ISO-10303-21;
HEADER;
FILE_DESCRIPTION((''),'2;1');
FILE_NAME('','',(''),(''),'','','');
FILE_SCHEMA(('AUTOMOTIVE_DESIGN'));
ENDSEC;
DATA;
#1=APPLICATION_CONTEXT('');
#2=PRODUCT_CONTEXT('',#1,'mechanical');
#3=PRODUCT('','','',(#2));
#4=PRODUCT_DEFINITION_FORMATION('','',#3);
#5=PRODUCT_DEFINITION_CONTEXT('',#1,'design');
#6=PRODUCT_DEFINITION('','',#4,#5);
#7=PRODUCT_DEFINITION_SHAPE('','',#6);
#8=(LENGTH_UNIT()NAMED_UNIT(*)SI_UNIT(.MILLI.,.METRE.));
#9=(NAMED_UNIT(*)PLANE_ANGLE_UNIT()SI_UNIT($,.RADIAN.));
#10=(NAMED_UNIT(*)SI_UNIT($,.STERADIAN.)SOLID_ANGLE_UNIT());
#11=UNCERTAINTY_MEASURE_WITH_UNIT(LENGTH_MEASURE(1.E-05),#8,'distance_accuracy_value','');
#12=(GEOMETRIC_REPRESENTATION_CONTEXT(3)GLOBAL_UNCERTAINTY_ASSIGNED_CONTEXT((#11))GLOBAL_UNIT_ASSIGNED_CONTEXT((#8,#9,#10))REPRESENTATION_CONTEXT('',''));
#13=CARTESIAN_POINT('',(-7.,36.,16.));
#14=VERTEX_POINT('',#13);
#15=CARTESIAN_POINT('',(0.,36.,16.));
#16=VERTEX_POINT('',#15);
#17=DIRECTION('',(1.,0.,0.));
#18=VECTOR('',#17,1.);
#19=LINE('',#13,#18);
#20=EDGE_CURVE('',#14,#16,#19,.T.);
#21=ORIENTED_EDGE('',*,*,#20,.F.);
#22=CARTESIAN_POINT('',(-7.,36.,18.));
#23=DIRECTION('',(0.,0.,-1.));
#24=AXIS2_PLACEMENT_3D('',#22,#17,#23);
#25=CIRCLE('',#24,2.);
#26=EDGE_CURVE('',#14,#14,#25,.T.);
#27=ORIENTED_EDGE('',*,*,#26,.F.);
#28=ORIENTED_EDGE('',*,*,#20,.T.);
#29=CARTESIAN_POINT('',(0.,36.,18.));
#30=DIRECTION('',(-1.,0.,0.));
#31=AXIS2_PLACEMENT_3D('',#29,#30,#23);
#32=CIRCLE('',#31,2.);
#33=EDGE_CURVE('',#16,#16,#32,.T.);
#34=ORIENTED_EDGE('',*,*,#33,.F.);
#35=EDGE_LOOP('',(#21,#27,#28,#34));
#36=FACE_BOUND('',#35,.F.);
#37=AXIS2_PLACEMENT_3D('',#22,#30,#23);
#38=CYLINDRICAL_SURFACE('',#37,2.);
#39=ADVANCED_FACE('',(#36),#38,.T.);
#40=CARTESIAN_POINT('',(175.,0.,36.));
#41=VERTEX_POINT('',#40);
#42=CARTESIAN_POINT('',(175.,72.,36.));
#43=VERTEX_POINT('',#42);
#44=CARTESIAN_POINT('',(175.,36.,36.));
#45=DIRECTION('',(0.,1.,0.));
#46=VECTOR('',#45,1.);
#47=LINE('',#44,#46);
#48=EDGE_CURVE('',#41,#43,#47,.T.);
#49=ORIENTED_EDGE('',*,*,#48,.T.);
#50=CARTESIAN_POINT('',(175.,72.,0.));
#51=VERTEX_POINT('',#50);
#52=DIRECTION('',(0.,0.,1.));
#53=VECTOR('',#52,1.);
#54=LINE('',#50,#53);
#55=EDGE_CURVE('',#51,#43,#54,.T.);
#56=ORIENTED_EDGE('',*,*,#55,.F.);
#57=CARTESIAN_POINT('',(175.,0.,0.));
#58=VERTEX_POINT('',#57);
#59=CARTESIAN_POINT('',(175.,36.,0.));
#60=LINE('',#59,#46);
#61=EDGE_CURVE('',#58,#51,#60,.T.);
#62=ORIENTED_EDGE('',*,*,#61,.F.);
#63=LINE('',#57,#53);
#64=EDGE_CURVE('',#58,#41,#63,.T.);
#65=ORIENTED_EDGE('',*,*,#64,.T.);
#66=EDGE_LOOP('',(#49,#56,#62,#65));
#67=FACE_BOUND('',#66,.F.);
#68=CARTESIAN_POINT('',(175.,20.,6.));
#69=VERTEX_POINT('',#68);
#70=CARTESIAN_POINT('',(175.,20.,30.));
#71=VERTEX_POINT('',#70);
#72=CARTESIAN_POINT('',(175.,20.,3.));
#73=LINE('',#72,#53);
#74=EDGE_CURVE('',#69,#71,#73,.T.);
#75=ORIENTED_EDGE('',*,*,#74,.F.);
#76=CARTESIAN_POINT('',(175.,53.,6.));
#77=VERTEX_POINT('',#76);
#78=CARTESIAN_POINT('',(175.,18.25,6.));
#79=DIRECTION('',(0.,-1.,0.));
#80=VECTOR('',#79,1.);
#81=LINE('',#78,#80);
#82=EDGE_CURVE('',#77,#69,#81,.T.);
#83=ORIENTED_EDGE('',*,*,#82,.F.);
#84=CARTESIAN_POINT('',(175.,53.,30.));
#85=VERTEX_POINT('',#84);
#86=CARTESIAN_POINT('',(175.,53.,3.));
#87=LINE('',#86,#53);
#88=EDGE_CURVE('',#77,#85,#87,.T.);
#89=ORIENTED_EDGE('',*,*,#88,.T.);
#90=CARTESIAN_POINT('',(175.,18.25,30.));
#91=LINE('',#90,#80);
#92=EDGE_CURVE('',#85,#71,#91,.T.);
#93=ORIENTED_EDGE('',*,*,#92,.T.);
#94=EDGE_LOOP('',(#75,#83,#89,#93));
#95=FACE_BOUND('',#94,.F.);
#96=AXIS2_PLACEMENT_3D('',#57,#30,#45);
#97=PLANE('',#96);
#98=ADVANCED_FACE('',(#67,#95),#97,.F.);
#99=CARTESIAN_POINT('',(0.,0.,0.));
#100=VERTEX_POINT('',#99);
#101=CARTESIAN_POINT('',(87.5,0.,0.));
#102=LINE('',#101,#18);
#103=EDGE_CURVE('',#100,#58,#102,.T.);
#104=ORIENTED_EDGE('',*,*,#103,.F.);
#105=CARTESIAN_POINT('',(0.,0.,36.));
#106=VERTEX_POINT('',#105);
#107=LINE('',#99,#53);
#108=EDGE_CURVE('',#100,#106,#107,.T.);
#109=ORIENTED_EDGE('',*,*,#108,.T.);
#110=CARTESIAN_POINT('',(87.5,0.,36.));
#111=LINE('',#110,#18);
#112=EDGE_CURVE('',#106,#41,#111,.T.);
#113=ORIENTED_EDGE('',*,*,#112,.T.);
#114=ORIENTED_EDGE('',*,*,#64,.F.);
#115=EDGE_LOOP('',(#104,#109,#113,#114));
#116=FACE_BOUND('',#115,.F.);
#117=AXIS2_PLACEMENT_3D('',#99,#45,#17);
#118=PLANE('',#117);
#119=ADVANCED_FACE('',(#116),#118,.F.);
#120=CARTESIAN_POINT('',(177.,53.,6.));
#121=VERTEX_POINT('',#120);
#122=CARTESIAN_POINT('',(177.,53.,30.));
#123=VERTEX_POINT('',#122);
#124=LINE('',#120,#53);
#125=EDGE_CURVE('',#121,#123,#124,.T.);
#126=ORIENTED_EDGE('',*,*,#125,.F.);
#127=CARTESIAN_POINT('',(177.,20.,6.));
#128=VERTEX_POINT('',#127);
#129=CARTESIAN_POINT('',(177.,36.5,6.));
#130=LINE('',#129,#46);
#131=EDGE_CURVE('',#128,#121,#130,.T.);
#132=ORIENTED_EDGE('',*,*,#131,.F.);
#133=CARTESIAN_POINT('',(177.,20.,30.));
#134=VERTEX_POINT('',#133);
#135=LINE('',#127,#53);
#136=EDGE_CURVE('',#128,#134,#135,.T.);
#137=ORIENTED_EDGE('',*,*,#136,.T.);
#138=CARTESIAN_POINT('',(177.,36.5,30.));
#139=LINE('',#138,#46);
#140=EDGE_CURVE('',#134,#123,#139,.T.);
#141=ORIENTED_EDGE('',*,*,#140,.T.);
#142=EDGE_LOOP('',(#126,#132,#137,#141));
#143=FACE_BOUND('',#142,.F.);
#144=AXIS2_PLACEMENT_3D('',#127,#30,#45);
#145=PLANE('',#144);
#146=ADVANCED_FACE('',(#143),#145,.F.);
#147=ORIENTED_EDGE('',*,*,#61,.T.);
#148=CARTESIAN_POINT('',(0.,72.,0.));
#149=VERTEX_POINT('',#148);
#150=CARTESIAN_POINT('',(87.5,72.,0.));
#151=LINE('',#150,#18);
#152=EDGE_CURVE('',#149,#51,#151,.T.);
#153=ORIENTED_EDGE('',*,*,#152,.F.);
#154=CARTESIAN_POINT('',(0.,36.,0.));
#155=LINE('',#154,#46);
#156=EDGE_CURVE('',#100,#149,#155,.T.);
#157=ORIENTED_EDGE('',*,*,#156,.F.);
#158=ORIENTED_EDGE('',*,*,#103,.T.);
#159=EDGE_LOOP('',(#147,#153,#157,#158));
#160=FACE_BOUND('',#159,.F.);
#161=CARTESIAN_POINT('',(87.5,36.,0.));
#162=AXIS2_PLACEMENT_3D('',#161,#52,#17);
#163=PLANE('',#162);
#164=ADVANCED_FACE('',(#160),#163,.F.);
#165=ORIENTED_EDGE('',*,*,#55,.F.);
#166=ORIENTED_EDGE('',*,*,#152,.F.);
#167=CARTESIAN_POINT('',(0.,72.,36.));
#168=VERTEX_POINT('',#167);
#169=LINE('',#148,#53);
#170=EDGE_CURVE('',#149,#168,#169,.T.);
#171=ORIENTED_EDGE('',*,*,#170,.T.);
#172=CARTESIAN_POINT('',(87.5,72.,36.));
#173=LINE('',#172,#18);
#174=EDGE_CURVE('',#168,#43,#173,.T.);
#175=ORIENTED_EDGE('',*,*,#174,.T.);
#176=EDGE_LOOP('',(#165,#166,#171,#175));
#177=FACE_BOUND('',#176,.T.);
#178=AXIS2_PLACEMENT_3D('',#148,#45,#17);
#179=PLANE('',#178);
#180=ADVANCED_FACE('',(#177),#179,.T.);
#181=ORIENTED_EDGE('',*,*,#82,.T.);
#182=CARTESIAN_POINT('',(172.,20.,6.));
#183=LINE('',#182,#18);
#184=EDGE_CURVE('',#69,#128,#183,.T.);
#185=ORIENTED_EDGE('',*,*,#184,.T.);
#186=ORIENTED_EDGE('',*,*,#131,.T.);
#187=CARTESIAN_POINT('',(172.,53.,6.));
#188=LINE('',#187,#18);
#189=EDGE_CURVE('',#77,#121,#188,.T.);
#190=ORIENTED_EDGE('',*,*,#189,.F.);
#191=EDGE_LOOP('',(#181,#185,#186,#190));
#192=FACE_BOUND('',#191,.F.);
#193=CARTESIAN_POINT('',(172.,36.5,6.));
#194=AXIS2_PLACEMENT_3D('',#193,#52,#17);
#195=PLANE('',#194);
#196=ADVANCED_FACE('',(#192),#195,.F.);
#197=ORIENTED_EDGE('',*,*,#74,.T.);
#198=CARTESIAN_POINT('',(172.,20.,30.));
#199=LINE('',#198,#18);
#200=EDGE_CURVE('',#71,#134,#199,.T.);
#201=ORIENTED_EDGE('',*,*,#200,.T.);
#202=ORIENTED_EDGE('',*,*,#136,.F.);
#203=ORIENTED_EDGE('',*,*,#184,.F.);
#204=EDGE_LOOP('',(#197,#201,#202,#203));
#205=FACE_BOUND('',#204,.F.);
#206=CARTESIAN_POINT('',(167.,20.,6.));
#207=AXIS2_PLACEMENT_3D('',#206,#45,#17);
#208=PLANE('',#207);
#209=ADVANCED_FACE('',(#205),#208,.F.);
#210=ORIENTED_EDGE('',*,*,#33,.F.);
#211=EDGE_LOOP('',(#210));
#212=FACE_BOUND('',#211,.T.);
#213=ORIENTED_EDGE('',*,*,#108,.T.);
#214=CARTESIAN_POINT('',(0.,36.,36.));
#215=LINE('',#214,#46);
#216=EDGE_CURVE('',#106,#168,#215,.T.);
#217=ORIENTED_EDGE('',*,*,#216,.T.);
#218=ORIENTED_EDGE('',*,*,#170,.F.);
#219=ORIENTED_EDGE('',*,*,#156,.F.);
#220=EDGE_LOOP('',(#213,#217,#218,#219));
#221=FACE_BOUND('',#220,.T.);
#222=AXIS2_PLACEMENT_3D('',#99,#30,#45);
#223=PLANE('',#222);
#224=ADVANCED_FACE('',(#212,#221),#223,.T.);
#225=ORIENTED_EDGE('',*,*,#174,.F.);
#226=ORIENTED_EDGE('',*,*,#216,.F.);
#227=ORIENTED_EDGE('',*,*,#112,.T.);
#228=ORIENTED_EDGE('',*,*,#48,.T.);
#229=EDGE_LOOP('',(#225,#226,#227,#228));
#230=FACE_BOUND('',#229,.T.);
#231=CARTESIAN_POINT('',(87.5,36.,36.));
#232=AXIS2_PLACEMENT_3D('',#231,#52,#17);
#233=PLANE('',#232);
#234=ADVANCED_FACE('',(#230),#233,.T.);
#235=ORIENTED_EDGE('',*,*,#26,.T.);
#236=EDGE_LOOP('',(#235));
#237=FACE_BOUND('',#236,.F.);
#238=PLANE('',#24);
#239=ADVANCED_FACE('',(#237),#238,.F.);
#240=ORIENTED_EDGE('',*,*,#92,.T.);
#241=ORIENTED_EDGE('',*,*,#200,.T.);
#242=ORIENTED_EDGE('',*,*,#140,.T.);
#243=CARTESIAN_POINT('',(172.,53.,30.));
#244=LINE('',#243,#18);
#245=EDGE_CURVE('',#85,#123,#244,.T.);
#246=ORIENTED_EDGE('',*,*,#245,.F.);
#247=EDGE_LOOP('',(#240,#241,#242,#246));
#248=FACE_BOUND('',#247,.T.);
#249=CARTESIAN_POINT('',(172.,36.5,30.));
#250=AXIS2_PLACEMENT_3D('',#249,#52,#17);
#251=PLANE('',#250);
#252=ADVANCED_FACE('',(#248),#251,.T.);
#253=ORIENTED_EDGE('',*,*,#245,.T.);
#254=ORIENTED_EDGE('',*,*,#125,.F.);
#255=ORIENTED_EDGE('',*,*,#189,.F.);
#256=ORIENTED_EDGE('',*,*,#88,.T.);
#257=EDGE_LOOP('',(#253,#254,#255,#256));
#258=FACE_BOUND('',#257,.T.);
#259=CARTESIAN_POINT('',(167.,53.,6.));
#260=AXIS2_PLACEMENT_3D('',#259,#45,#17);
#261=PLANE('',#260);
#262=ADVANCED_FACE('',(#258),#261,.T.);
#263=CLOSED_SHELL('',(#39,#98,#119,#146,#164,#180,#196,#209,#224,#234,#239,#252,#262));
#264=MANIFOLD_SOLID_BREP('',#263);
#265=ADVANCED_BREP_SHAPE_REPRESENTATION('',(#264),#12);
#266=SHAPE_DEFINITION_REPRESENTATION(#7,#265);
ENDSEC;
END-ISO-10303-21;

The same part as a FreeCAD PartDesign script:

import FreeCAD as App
import Part
import Sketcher

V = App.Vector
Q = App.Units.Quantity


def add_polygon(sketch, points):
    """Adds a closed chain of lines whose ends are joined by coincident constraints."""
    first, n = sketch.GeometryCount, len(points)
    for a, b in zip(points, points[1:] + points[:1]):
        sketch.addGeometry(Part.LineSegment(App.Vector(*a, 0), App.Vector(*b, 0)), False)
    for i in range(n):
        sketch.addConstraint(Sketcher.Constraint("Coincident", first + i, 2, first + (i + 1) % n, 1))

doc = App.newDocument("Part")
params = doc.addObject("Spreadsheet::Sheet", "Params")
for row, (alias, value) in enumerate([
    ("sketch1_diameter", "4 mm"),
    ("pad1_length", "11 mm"),
    ("sketch2_width", "175 mm"),
    ("sketch2_height", "72 mm"),
    ("pad2_length", "36 mm"),
    ("sketch3_width", "7 mm"),
    ("sketch3_height", "4 mm"),
    ("pad3_length", "10 mm"),
    ("sketch4_width", "10 mm"),
    ("sketch4_height", "33 mm"),
    ("pad4_length", "24 mm"),
], start=1):
    params.set(f"A{row}", alias)
    params.set(f"B{row}", "=" + value)
    params.setAlias(f"B{row}", alias)

body = doc.addObject("PartDesign::Body", "Body")

# Sketch on YZ plane
sketch1 = doc.addObject("Sketcher::SketchObject", "Sketch")
body.addObject(sketch1)
sketch1.AttachmentSupport = (doc.YZ_Plane, [""])
sketch1.MapMode = "FlatFace"
sketch1.AttachmentOffset = App.Placement(V(0, 0, -7), App.Rotation())
sketch1.addGeometry(Part.Circle(V(36, 18, 0), V(0, 0, 1), 2), False)
sketch1.addConstraint([
    Sketcher.Constraint("Diameter", 0, Q("4 mm")),
    Sketcher.Constraint("DistanceX", -1, 1, 0, 3, Q("36 mm")),
    Sketcher.Constraint("DistanceY", -1, 1, 0, 3, Q("18 mm")),
])
sketch1.setExpression("Constraints[0]", "Params.sketch1_diameter")
pad1 = doc.addObject("PartDesign::Pad", "Pad")
body.addObject(pad1)
pad1.Profile = sketch1
pad1.setExpression("Length", "Params.pad1_length")
body2 = doc.addObject("PartDesign::Body", "Body001")

# Sketch on XY plane
sketch2 = doc.addObject("Sketcher::SketchObject", "Sketch001")
body2.addObject(sketch2)
sketch2.AttachmentSupport = (doc.getObject("XY_Plane001"), [""])
sketch2.MapMode = "FlatFace"
add_polygon(sketch2, [(0, 72), (0, 0), (175, 0), (175, 72)])  # lines 0-3
sketch2.addConstraint([
    Sketcher.Constraint("Vertical", 0),
    Sketcher.Constraint("Horizontal", 1),
    Sketcher.Constraint("Vertical", 2),
    Sketcher.Constraint("Horizontal", 3),
    Sketcher.Constraint("Coincident", 0, 2, -1, 1),
    Sketcher.Constraint("DistanceX", 1, 1, 1, 2, Q("175 mm")),
    Sketcher.Constraint("DistanceY", 0, 2, 0, 1, Q("72 mm")),
])
sketch2.setExpression("Constraints[9]", "Params.sketch2_width")
sketch2.setExpression("Constraints[10]", "Params.sketch2_height")
pad2 = doc.addObject("PartDesign::Pad", "Pad001")
body2.addObject(pad2)
pad2.Profile = sketch2
pad2.setExpression("Length", "Params.pad2_length")
body3 = doc.addObject("PartDesign::Body", "Body002")

# Sketch on XY plane
sketch3 = doc.addObject("Sketcher::SketchObject", "Sketch002")
body3.addObject(sketch3)
sketch3.AttachmentSupport = (doc.getObject("XY_Plane002"), [""])
sketch3.MapMode = "FlatFace"
sketch3.AttachmentOffset = App.Placement(V(0, 0, 26), App.Rotation())
add_polygon(sketch3, [(5, 22), (5, 18), (12, 18), (12, 22)])  # lines 0-3
sketch3.addConstraint([
    Sketcher.Constraint("Vertical", 0),
    Sketcher.Constraint("Horizontal", 1),
    Sketcher.Constraint("Vertical", 2),
    Sketcher.Constraint("Horizontal", 3),
    Sketcher.Constraint("DistanceX", 1, 1, 1, 2, Q("7 mm")),
    Sketcher.Constraint("DistanceY", 0, 2, 0, 1, Q("4 mm")),
    Sketcher.Constraint("DistanceX", -1, 1, 0, 2, Q("5 mm")),
    Sketcher.Constraint("DistanceY", -1, 1, 0, 2, Q("18 mm")),
])
sketch3.setExpression("Constraints[8]", "Params.sketch3_width")
sketch3.setExpression("Constraints[9]", "Params.sketch3_height")
pad3 = doc.addObject("PartDesign::Pad", "Pad002")
body3.addObject(pad3)
pad3.Profile = sketch3
pad3.setExpression("Length", "Params.pad3_length")
body4 = doc.addObject("PartDesign::Body", "Body003")
body4.AllowCompound = True

# Sketch on XY plane
sketch4 = doc.addObject("Sketcher::SketchObject", "Sketch003")
body4.addObject(sketch4)
sketch4.AttachmentSupport = (doc.getObject("XY_Plane003"), [""])
sketch4.MapMode = "FlatFace"
sketch4.AttachmentOffset = App.Placement(V(0, 0, 6), App.Rotation())
add_polygon(sketch4, [(167, 53), (167, 20), (177, 20), (177, 53)])  # lines 0-3
sketch4.addConstraint([
    Sketcher.Constraint("Vertical", 0),
    Sketcher.Constraint("Horizontal", 1),
    Sketcher.Constraint("Vertical", 2),
    Sketcher.Constraint("Horizontal", 3),
    Sketcher.Constraint("DistanceX", 1, 1, 1, 2, Q("10 mm")),
    Sketcher.Constraint("DistanceY", 0, 2, 0, 1, Q("33 mm")),
    Sketcher.Constraint("DistanceX", -1, 1, 0, 2, Q("167 mm")),
    Sketcher.Constraint("DistanceY", -1, 1, 0, 2, Q("20 mm")),
])
sketch4.setExpression("Constraints[8]", "Params.sketch4_width")
sketch4.setExpression("Constraints[9]", "Params.sketch4_height")
pad4 = doc.addObject("PartDesign::Pad", "Pad003")
body4.addObject(pad4)
pad4.Profile = sketch4
pad4.setExpression("Length", "Params.pad4_length")
doc.recompute()

boolean = doc.addObject("PartDesign::Boolean", "Boolean")
body4.addObject(boolean)
boolean.Type = "Fuse"
boolean.addObjects([body])
doc.recompute()

boolean2 = doc.addObject("PartDesign::Boolean", "Boolean001")
body4.addObject(boolean2)
boolean2.Type = "Fuse"
boolean2.addObjects([body2])
doc.recompute()

boolean3 = doc.addObject("PartDesign::Boolean", "Boolean002")
body4.addObject(boolean3)
boolean3.Type = "Fuse"
boolean3.addObjects([body3])

doc.recompute()
